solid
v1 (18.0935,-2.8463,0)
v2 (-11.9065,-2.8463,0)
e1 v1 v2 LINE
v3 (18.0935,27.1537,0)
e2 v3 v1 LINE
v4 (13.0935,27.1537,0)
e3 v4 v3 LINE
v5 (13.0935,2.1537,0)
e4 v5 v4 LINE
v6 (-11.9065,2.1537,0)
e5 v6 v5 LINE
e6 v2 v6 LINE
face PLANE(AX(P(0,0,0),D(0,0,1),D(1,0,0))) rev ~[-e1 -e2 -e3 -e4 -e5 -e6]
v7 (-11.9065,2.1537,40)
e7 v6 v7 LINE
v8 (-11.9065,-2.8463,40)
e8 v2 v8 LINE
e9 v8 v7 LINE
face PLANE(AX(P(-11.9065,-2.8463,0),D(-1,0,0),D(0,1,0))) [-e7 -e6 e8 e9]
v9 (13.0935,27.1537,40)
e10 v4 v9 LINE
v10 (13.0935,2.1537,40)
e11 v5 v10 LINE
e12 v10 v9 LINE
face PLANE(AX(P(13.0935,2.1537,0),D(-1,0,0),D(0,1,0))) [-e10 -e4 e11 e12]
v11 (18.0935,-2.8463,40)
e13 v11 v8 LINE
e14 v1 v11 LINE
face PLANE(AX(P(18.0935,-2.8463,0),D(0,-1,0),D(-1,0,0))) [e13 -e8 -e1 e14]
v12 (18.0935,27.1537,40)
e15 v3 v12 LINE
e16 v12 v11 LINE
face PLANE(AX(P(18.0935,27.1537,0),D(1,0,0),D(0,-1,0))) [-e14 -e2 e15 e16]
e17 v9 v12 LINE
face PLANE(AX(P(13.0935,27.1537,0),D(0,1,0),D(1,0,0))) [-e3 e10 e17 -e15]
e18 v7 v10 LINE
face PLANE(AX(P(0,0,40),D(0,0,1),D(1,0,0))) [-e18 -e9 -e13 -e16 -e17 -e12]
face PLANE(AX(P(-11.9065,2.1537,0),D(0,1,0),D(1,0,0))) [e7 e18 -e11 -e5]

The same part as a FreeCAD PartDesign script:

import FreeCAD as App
import Part
import Sketcher
Q = App.Units.Quantity


def add_polygon(sketch, points):
    """Adds a closed chain of lines whose ends are joined by coincident constraints."""
    first, n = sketch.GeometryCount, len(points)
    for a, b in zip(points, points[1:] + points[:1]):
        sketch.addGeometry(Part.LineSegment(App.Vector(*a, 0), App.Vector(*b, 0)), False)
    for i in range(n):
        sketch.addConstraint(Sketcher.Constraint("Coincident", first + i, 2, first + (i + 1) % n, 1))

doc = App.newDocument("Part")
body = doc.addObject("PartDesign::Body", "Body")

sketch1 = doc.addObject("Sketcher::SketchObject", "Sketch")
body.addObject(sketch1)
sketch1.AttachmentSupport = (doc.XY_Plane, [""])
sketch1.MapMode = "FlatFace"
add_polygon(sketch1, [(13.0935, 2.1537), (-11.9065, 2.1537), (-11.9065, -2.8463), (18.0935, -2.8463), (18.0935, 27.1537), (13.0935, 27.1537)])
sketch1.addConstraint(Sketcher.Constraint("Horizontal", 0))
sketch1.addConstraint(Sketcher.Constraint("Vertical", 1))
sketch1.addConstraint(Sketcher.Constraint("Horizontal", 2))
sketch1.addConstraint(Sketcher.Constraint("Vertical", 3))
sketch1.addConstraint(Sketcher.Constraint("Horizontal", 4))
sketch1.addConstraint(Sketcher.Constraint("Vertical", 5))
sketch1.addConstraint(Sketcher.Constraint("Equal", 4, 1))
sketch1.addConstraint(Sketcher.Constraint("Equal", 2, 3))
sketch1.addConstraint(Sketcher.Constraint("DistanceX", 2, 1, 2, 2, Q("30 mm")))
sketch1.addConstraint(Sketcher.Constraint("DistanceX", 4, 2, 4, 1, Q("5 mm")))
sketch1.addConstraint(Sketcher.Constraint("DistanceX", 0, 2, -1, 1, Q("11.9065 mm")))
sketch1.addConstraint(Sketcher.Constraint("DistanceY", -1, 1, 0, 2, Q("2.1537 mm")))
pad1 = doc.addObject("PartDesign::Pad", "Pad")
body.addObject(pad1)
pad1.Profile = sketch1
pad1.Length = 40

doc.recompute()
